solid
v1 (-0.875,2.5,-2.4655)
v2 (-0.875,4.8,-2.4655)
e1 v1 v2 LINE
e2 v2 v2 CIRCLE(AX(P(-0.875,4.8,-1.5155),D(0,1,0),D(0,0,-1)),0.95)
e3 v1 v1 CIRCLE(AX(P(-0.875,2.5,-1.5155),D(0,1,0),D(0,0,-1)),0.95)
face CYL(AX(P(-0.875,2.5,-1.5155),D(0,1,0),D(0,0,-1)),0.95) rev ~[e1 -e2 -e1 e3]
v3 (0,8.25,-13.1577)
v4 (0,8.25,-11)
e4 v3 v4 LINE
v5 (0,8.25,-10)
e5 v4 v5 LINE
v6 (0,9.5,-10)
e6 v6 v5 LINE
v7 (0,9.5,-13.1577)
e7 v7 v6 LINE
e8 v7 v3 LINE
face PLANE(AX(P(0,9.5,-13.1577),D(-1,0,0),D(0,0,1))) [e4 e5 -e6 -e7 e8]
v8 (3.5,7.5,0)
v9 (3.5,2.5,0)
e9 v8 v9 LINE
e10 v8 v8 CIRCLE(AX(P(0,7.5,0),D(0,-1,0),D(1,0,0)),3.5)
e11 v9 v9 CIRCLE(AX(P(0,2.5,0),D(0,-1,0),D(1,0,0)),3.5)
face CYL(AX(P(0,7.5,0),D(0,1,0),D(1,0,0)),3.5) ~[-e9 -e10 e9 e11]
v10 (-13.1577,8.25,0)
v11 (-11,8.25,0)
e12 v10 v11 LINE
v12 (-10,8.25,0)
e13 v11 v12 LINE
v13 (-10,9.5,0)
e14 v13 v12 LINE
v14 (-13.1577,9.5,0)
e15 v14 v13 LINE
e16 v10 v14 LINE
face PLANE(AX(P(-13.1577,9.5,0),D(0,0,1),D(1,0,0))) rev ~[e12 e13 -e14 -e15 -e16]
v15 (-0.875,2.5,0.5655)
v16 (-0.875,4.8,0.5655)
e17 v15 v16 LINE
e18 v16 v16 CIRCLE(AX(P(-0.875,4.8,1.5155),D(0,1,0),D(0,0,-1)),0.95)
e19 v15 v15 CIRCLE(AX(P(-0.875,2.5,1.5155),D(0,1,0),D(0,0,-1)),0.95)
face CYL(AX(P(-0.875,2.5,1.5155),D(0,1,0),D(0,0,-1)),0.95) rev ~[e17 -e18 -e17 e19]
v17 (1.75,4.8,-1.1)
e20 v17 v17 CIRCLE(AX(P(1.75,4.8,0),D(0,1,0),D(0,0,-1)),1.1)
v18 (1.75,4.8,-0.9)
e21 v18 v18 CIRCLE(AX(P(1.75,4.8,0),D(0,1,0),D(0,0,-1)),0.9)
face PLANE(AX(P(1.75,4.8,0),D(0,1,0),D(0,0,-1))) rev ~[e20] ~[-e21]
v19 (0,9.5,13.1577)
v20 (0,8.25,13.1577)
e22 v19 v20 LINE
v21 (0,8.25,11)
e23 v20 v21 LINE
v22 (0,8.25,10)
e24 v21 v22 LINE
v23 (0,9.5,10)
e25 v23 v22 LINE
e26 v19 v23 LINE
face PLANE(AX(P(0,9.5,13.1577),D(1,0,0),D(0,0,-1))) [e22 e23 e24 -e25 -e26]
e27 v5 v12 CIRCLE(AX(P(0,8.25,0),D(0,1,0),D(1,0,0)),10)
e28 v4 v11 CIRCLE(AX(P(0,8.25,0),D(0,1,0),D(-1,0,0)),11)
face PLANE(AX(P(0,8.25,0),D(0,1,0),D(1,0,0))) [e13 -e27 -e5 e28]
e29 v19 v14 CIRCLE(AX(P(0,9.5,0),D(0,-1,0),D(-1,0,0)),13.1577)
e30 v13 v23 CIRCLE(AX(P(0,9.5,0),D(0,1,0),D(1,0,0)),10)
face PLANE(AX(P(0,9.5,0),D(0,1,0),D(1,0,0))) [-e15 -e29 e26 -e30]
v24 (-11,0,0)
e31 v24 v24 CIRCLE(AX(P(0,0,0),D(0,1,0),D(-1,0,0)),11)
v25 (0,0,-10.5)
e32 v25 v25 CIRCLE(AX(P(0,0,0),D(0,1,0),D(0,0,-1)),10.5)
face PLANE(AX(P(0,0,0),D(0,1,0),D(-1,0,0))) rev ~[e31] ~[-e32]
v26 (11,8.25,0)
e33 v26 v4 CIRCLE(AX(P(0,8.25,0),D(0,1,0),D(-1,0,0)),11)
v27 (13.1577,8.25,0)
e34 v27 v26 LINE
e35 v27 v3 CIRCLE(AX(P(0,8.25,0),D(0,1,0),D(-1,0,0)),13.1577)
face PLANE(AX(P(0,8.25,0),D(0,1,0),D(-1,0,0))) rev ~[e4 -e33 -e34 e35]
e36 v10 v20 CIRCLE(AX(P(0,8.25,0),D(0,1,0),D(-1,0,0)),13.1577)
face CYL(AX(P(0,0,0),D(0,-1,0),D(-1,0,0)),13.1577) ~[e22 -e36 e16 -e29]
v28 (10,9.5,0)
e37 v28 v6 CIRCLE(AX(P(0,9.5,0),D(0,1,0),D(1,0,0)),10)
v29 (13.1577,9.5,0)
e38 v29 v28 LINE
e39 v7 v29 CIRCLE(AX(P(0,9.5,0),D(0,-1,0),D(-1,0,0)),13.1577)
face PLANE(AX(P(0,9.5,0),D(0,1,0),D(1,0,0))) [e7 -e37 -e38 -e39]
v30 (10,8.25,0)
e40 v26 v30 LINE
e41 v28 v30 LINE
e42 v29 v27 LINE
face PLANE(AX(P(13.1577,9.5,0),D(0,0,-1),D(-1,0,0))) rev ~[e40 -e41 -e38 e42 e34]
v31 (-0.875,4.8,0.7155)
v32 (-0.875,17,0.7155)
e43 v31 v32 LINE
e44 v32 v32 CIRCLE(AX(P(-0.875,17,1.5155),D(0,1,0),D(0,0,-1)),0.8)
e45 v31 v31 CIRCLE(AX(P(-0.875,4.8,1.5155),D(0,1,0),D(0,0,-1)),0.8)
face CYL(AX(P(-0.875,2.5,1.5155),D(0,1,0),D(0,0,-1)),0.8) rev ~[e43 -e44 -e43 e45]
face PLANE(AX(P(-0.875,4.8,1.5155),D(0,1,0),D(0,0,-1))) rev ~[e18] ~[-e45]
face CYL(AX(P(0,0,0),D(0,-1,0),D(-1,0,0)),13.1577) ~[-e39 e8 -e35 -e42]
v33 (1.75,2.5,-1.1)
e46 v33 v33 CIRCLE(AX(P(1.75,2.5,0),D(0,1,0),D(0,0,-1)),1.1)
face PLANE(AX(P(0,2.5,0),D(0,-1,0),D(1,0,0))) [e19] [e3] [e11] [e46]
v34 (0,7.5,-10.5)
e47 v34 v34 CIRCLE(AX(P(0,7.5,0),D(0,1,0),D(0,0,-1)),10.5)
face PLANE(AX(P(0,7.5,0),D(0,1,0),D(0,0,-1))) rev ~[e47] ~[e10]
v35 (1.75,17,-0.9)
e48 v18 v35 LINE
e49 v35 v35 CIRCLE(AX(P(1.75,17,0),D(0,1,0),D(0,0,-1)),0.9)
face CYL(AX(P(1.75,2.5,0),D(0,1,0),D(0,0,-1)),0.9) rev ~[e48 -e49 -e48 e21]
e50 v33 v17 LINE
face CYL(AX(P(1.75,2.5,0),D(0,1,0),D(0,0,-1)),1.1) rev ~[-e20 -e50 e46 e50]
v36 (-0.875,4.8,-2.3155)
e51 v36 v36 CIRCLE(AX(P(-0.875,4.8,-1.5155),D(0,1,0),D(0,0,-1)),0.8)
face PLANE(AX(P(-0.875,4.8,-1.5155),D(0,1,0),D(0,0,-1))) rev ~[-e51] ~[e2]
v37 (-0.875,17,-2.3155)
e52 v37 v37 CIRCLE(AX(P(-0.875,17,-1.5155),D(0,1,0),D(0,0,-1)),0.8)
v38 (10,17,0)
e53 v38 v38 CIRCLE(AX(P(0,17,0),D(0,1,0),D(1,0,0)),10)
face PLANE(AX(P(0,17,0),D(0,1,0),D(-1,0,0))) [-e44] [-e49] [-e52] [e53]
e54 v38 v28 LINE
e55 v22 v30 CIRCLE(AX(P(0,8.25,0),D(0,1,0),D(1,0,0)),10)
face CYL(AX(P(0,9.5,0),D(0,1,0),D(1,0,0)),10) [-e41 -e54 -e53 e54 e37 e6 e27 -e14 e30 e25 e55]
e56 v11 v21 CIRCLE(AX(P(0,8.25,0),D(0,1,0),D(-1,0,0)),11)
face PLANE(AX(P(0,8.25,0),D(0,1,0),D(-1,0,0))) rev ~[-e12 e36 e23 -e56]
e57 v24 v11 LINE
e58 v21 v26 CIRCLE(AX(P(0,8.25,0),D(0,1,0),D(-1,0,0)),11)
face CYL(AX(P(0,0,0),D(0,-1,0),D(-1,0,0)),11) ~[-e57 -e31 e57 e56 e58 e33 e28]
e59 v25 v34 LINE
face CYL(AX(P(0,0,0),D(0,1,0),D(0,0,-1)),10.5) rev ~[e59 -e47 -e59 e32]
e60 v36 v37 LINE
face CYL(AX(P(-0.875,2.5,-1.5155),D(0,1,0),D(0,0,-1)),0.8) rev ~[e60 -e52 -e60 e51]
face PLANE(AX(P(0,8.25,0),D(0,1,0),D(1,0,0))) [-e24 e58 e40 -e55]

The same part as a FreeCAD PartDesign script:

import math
import FreeCAD as App
import Part
import Sketcher
from FreeCAD import Vector
Q = App.Units.Quantity

doc = App.newDocument("Part")
body = doc.addObject("PartDesign::Body", "Body")

sketch1 = body.newObject("Sketcher::SketchObject", "Sketch")
sketch1.AttachmentSupport = (doc.getObject("XZ_Plane"), [""])
sketch1.MapMode = "FlatFace"
sketch1.addGeometry(Part.Circle(Vector(0, 0, 0), Vector(0, 0, 1), 11), False)
sketch1.addConstraint([
    Sketcher.Constraint("Coincident", 0, 3, -1, 1),
    Sketcher.Constraint("Diameter", 0, Q("22 mm")),
])
pad1 = body.newObject("PartDesign::Pad", "Pad")
pad1.Profile = sketch1
pad1.Length = 17
pad1.Reversed = True

sketch2 = body.newObject("Sketcher::SketchObject", "Sketch001")
sketch2.AttachmentSupport = (doc.getObject("XZ_Plane"), [""])
sketch2.MapMode = "FlatFace"
sketch2.addGeometry(Part.Circle(Vector(0, 0, 0), Vector(0, 0, 1), 10), False)
sketch2.addConstraint([
    Sketcher.Constraint("Coincident", 0, 3, -1, 1),
    Sketcher.Constraint("Diameter", 0, Q("21 mm")),
])
doc.recompute()
hole = body.newObject("PartDesign::Hole", "Hole")
hole.Profile = sketch2
hole.ThreadType = "None"
hole.Diameter = 21
hole.DepthType = "Dimension"
hole.Depth = 7.5
hole.DrillPoint = "Flat"

sketch3 = body.newObject("Sketcher::SketchObject", "Sketch002")
sketch3.AttachmentSupport = (doc.getObject("XZ_Plane"), [""])
sketch3.MapMode = "FlatFace"
sketch3.AttachmentOffset = App.Placement(Vector(0, 0, -7.5), App.Rotation())
sketch3.addGeometry(Part.Circle(Vector(0, 0, 0), Vector(0, 0, 1), 3.5), False)
sketch3.addConstraint([
    Sketcher.Constraint("Coincident", 0, 3, -1, 1),
    Sketcher.Constraint("Diameter", 0, Q("7 mm")),
])
pad2 = body.newObject("PartDesign::Pad", "Pad001")
pad2.Profile = sketch3
pad2.Length = 5

sketch4 = body.newObject("Sketcher::SketchObject", "Sketch003")
sketch4.AttachmentSupport = (doc.getObject("XZ_Plane"), [""])
sketch4.MapMode = "FlatFace"
sketch4.AttachmentOffset = App.Placement(Vector(0, 0, -2.5), App.Rotation())
sketch4.addGeometry([
    Part.Circle(Vector(-0.9, -1.5, 0), Vector(0, 0, 1), 0.8),
    Part.Circle(Vector(-0.9, 1.5, 0), Vector(0, 0, 1), 0.8),
], False)
sketch4.addConstraint([
    Sketcher.Constraint("Equal", 0, 1),
    Sketcher.Constraint("Symmetric", 0, 3, 1, 3, -1),
    Sketcher.Constraint("Diameter", 0, Q("1.6 mm")),
    Sketcher.Constraint("DistanceX", 0, 3, -1, 1, Q("0.875 mm")),
    Sketcher.Constraint("DistanceY", 0, 3, 1, 3, Q("3.031 mm")),
])
doc.recompute()
hole2 = body.newObject("PartDesign::Hole", "Hole001")
hole2.Profile = sketch4
hole2.ThreadType = "None"
hole2.Diameter = 1.6
hole2.DepthType = "Dimension"
hole2.Depth = 24
hole2.DrillPoint = "Flat"

sketch5 = body.newObject("Sketcher::SketchObject", "Sketch004")
sketch5.AttachmentSupport = (doc.getObject("XZ_Plane"), [""])
sketch5.MapMode = "FlatFace"
sketch5.AttachmentOffset = App.Placement(Vector(0, 0, -2.5), App.Rotation())
sketch5.addGeometry(Part.Circle(Vector(1.8, 0, 0), Vector(0, 0, 1), 0.9), False)
sketch5.addConstraint([
    Sketcher.Constraint("PointOnObject", 0, 3, -1),
    Sketcher.Constraint("Diameter", 0, Q("1.8 mm")),
    Sketcher.Constraint("DistanceX", -1, 1, 0, 3, Q("1.75 mm")),
])
doc.recompute()
hole3 = body.newObject("PartDesign::Hole", "Hole002")
hole3.Profile = sketch5
hole3.ThreadType = "None"
hole3.Diameter = 1.8
hole3.DepthType = "Dimension"
hole3.Depth = 23.25
hole3.DrillPoint = "Flat"

sketch6 = body.newObject("Sketcher::SketchObject", "Sketch005")
sketch6.AttachmentSupport = (doc.getObject("XZ_Plane"), [""])
sketch6.MapMode = "FlatFace"
sketch6.addGeometry([
    Part.Circle(Vector(0, 0, 0), Vector(0, 0, 1), 13),
    Part.Circle(Vector(0, 0, 0), Vector(0, 0, 1), 11),
], False)
sketch6.addConstraint([
    Sketcher.Constraint("Coincident", 0, 3, -1, 1),
    Sketcher.Constraint("Coincident", 1, 3, -1, 1),
    Sketcher.Constraint("Diameter", 1, Q("22 mm")),
    Sketcher.Constraint("Diameter", 0, Q("26.3154 mm")),
])
pad3 = body.newObject("PartDesign::Pad", "Pad002")
pad3.Profile = sketch6
pad3.Length = 17
pad3.Reversed = True

sketch7 = body.newObject("Sketcher::SketchObject", "Sketch006")
sketch7.AttachmentSupport = (doc.getObject("XZ_Plane"), [""])
sketch7.MapMode = "FlatFace"
sketch7.addGeometry([
    Part.Circle(Vector(0, 0, 0), Vector(0, 0, 1), 13),
    Part.Circle(Vector(0, 0, 0), Vector(0, 0, 1), 11),
], False)
sketch7.addConstraint([
    Sketcher.Constraint("Coincident", 0, 3, -1, 1),
    Sketcher.Constraint("Coincident", 1, 3, -1, 1),
    Sketcher.Constraint("Diameter", 1, Q("22 mm")),
    Sketcher.Constraint("Diameter", 0, Q("26.3154 mm")),
])
pocket1 = body.newObject("PartDesign::Pocket", "Pocket")
pocket1.Profile = sketch7
pocket1.Length = 8.25

sketch8 = body.newObject("Sketcher::SketchObject", "Sketch007")
sketch8.AttachmentSupport = (doc.getObject("XZ_Plane"), [""])
sketch8.MapMode = "FlatFace"
sketch8.AttachmentOffset = App.Placement(Vector(0, 0, -17), App.Rotation())
sketch8.addGeometry([
    Part.Circle(Vector(0, 0, 0), Vector(0, 0, 1), 13),
    Part.Circle(Vector(0, 0, 0), Vector(0, 0, 1), 10),
], False)
sketch8.addConstraint([
    Sketcher.Constraint("Coincident", 0, 3, -1, 1),
    Sketcher.Constraint("Coincident", 1, 3, -1, 1),
    Sketcher.Constraint("Diameter", 1, Q("20 mm")),
    Sketcher.Constraint("Diameter", 0, Q("26.3154 mm")),
])
pocket2 = body.newObject("PartDesign::Pocket", "Pocket001")
pocket2.Profile = sketch8
pocket2.Length = 7.5
pocket2.Reversed = True

sketch9 = body.newObject("Sketcher::SketchObject", "Sketch008")
sketch9.AttachmentSupport = (doc.getObject("XZ_Plane"), [""])
sketch9.MapMode = "FlatFace"
sketch9.AttachmentOffset = App.Placement(Vector(0, 0, -9.5), App.Rotation())
sketch9.addGeometry([
    Part.ArcOfCircle(Part.Circle(Vector(0, 0, 0), Vector(0, 0, 1), 13.2), math.radians(0), math.radians(90)),
    Part.LineSegment(Vector(13.2, 0, 0), Vector(10, 0, 0)),
    Part.ArcOfCircle(Part.Circle(Vector(0, 0, 0), Vector(0, 0, 1), 10), math.radians(0), math.radians(90)),
    Part.LineSegment(Vector(0, 10, 0), Vector(0, 13.2, 0)),
    Part.LineSegment(Vector(0, -10, 0), Vector(0, -13.2, 0)),
    Part.ArcOfCircle(Part.Circle(Vector(0, 0, 0), Vector(0, 0, 1), 13.2), math.radians(180), math.radians(270)),
    Part.LineSegment(Vector(-13.2, 0, 0), Vector(-10, 0, 0)),
    Part.ArcOfCircle(Part.Circle(Vector(0, 0, 0), Vector(0, 0, 1), 10), math.radians(180), math.radians(270)),
], False)
sketch9.addConstraint([
    Sketcher.Constraint("Coincident", 0, 1, 1, 1),
    Sketcher.Constraint("Coincident", 1, 2, 2, 1),
    Sketcher.Constraint("Coincident", 2, 2, 3, 1),
    Sketcher.Constraint("Coincident", 3, 2, 0, 2),
    Sketcher.Constraint("Coincident", 4, 2, 5, 2),
    Sketcher.Constraint("Coincident", 5, 1, 6, 1),
    Sketcher.Constraint("Coincident", 6, 2, 7, 1),
    Sketcher.Constraint("Coincident", 7, 2, 4, 1),
    Sketcher.Constraint("Horizontal", 1),
    Sketcher.Constraint("Vertical", 3),
    Sketcher.Constraint("Vertical", 4),
    Sketcher.Constraint("Horizontal", 6),
    Sketcher.Constraint("Coincident", 0, 3, -1, 1),
    Sketcher.Constraint("Coincident", 2, 3, -1, 1),
    Sketcher.Constraint("Coincident", 5, 3, -1, 1),
    Sketcher.Constraint("Coincident", 7, 3, -1, 1),
    Sketcher.Constraint("Equal", 0, 5),
    Sketcher.Constraint("Equal", 2, 7),
    Sketcher.Constraint("PointOnObject", 0, 1, -1),
    Sketcher.Constraint("PointOnObject", 2, 2, -2),
    Sketcher.Constraint("PointOnObject", 4, 2, -2),
    Sketcher.Constraint("PointOnObject", 5, 1, -1),
    Sketcher.Constraint("Radius", 2, Q("10 mm")),
    Sketcher.Constraint("Radius", 0, Q("13.1577 mm")),
])
pocket3 = body.newObject("PartDesign::Pocket", "Pocket002")
pocket3.Profile = sketch9
pocket3.Length = 1.25
pocket3.Reversed = True

sketch10 = body.newObject("Sketcher::SketchObject", "Sketch009")
sketch10.AttachmentSupport = (doc.getObject("XZ_Plane"), [""])
sketch10.MapMode = "FlatFace"
sketch10.AttachmentOffset = App.Placement(Vector(0, 0, -2.5), App.Rotation())
sketch10.addGeometry(Part.Circle(Vector(1.8, 0, 0), Vector(0, 0, 1), 1.1), False)
sketch10.addConstraint([
    Sketcher.Constraint("PointOnObject", 0, 3, -1),
    Sketcher.Constraint("Diameter", 0, Q("2.2 mm")),
    Sketcher.Constraint("DistanceX", -1, 1, 0, 3, Q("1.75 mm")),
])
doc.recompute()
hole4 = body.newObject("PartDesign::Hole", "Hole003")
hole4.Profile = sketch10
hole4.ThreadType = "None"
hole4.Diameter = 2.2
hole4.DepthType = "Dimension"
hole4.Depth = 2.3
hole4.DrillPoint = "Flat"

sketch11 = body.newObject("Sketcher::SketchObject", "Sketch010")
sketch11.AttachmentSupport = (doc.getObject("XZ_Plane"), [""])
sketch11.MapMode = "FlatFace"
sketch11.AttachmentOffset = App.Placement(Vector(0, 0, -2.5), App.Rotation())
sketch11.addGeometry([
    Part.Circle(Vector(-0.9, 1.5, 0), Vector(0, 0, 1), 0.9),
    Part.Circle(Vector(-0.9, -1.5, 0), Vector(0, 0, 1), 0.9),
], False)
sketch11.addConstraint([
    Sketcher.Constraint("Equal", 0, 1),
    Sketcher.Constraint("Symmetric", 0, 3, 1, 3, -1),
    Sketcher.Constraint("Diameter", 0, Q("1.9 mm")),
    Sketcher.Constraint("DistanceX", 0, 3, -1, 1, Q("0.875 mm")),
    Sketcher.Constraint("DistanceY", 1, 3, 0, 3, Q("3.031 mm")),
])
doc.recompute()
hole5 = body.newObject("PartDesign::Hole", "Hole004")
hole5.Profile = sketch11
hole5.ThreadType = "None"
hole5.Diameter = 1.9
hole5.DepthType = "Dimension"
hole5.Depth = 2.3
hole5.DrillPoint = "Flat"

doc.recompute()
